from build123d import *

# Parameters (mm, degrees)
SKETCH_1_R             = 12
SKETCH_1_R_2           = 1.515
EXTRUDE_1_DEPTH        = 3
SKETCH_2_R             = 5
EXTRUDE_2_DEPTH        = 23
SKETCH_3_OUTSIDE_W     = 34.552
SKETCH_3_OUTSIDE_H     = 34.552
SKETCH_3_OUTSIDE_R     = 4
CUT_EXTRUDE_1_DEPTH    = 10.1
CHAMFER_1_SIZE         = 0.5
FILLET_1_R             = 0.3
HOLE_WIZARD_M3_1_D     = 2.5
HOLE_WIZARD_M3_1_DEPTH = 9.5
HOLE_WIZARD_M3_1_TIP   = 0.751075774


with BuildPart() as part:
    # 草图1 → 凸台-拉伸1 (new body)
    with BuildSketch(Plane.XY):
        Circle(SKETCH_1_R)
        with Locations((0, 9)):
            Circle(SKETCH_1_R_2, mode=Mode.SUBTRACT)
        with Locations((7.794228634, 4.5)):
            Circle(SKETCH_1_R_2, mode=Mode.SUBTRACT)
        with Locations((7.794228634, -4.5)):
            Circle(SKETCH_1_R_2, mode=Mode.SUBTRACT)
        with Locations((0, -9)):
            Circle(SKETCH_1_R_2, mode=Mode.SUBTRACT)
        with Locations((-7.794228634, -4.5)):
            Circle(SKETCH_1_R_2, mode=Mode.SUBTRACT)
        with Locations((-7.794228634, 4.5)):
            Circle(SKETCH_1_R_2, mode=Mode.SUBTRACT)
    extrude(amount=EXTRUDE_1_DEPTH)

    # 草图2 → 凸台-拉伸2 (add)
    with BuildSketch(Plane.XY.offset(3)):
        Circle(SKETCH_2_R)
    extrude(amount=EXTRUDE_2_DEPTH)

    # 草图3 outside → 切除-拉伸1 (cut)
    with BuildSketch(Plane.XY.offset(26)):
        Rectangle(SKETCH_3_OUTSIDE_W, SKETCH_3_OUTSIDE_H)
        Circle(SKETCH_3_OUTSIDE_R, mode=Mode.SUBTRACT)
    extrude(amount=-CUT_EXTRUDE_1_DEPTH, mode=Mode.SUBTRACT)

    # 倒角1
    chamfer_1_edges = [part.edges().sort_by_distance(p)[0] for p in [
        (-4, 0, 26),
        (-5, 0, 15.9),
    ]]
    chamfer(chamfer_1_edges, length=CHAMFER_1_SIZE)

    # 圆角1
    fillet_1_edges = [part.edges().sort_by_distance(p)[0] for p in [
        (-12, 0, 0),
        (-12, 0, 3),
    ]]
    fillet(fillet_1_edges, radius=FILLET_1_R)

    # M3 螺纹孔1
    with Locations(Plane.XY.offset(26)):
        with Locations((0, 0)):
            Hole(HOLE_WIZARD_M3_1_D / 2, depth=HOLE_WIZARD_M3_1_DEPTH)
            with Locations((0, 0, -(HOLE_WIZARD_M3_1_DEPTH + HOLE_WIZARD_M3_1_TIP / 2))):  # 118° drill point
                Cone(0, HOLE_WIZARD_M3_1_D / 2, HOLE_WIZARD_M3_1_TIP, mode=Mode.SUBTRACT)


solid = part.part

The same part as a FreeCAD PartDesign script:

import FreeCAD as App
import Part
import Sketcher

V = App.Vector


def edges_at(feature, points):
    """Names of the edges that pass closest to the given points."""
    edges = feature.Shape.Edges
    near = lambda p: min(range(len(edges)), key=lambda i: edges[i].distToShape(Part.Vertex(*p))[0])
    return sorted({f"Edge{near(p) + 1}" for p in points})


def add_polygon(sketch, points):
    """Adds a closed chain of lines whose ends are joined by coincident constraints."""
    first, n = sketch.GeometryCount, len(points)
    for a, b in zip(points, points[1:] + points[:1]):
        sketch.addGeometry(Part.LineSegment(App.Vector(*a, 0), App.Vector(*b, 0)), False)
    for i in range(n):
        sketch.addConstraint(Sketcher.Constraint("Coincident", first + i, 2, first + (i + 1) % n, 1))

doc = App.newDocument("Part")
params = doc.addObject("Spreadsheet::Sheet", "Params")
for row, (alias, value) in enumerate([
    ("sketch1_diameter", "24 mm"),
    ("sketch1_diameter2", "3.03 mm"),
    ("pad1_length", "3 mm"),
    ("sketch2_diameter", "10 mm"),
    ("pad2_length", "23 mm"),
    ("sketch3_diameter", "8 mm"),
    ("pocket1_length", "10.1 mm"),
    ("chamfer_size", "0.5 mm"),
    ("fillet_radius", "0.3 mm"),
    ("sketch4_diameter", "2.5 mm"),
    ("hole_diameter", "2.5 mm"),
    ("hole_depth", "9.5 mm"),
], start=1):
    params.set(f"A{row}", alias)
    params.set(f"B{row}", "=" + value)
    params.setAlias(f"B{row}", alias)

body = doc.addObject("PartDesign::Body", "Body")

# Sketch on XY plane
sketch1 = body.newObject("Sketcher::SketchObject", "Sketch")
sketch1.AttachmentSupport = (doc.getObject("XY_Plane"), [""])
sketch1.MapMode = "FlatFace"
sketch1.addGeometry(Part.Circle(V(0, 0, 0), V(0, 0, 1), 12), False)
sketch1.addGeometry(Part.Circle(V(-7.794229, -4.5, 0), V(0, 0, 1), 1.515), False)
sketch1.addGeometry(Part.Circle(V(0, -9, 0), V(0, 0, 1), 1.515), False)
sketch1.addGeometry(Part.Circle(V(7.794229, -4.5, 0), V(0, 0, 1), 1.515), False)
sketch1.addGeometry(Part.Circle(V(-7.794229, 4.5, 0), V(0, 0, 1), 1.515), False)
sketch1.addGeometry(Part.Circle(V(7.794229, 4.5, 0), V(0, 0, 1), 1.515), False)
sketch1.addGeometry(Part.Circle(V(0, 9, 0), V(0, 0, 1), 1.515), False)
sketch1.addConstraint(Sketcher.Constraint("Coincident", 0, 3, -1, 1))
sketch1.addConstraint(Sketcher.Constraint("Equal", 1, 2))
sketch1.addConstraint(Sketcher.Constraint("Equal", 2, 3))
sketch1.addConstraint(Sketcher.Constraint("Equal", 3, 4))
sketch1.addConstraint(Sketcher.Constraint("Equal", 4, 5))
sketch1.addConstraint(Sketcher.Constraint("Equal", 5, 6))
sketch1.addConstraint(Sketcher.Constraint("Symmetric", 3, 3, 4, 3, -1, 1))
sketch1.addConstraint(Sketcher.Constraint("Symmetric", 1, 3, 5, 3, -1, 1))
sketch1.addConstraint(Sketcher.Constraint("Symmetric", 2, 3, 6, 3, -1, 1))
sketch1.addConstraint(Sketcher.Constraint("Symmetric", 1, 3, 3, 3, -2))
sketch1.addConstraint(Sketcher.Constraint("PointOnObject", 2, 3, -2))
sketch1.addConstraint(Sketcher.Constraint("Diameter", 0, 24.0))
sketch1.addConstraint(Sketcher.Constraint("Diameter", 1, 3.03))
sketch1.addConstraint(Sketcher.Constraint("DistanceY", 2, 3, -1, 1, 9.0))
sketch1.addConstraint(Sketcher.Constraint("DistanceY", 1, 3, 4, 3, 9.0))
sketch1.addConstraint(Sketcher.Constraint("DistanceX", 1, 3, -1, 1, 7.794229))
sketch1.setExpression("Constraints[11]", "Params.sketch1_diameter")
sketch1.setExpression("Constraints[12]", "Params.sketch1_diameter2")
pad1 = body.newObject("PartDesign::Pad", "Pad")
pad1.Profile = sketch1
pad1.setExpression("Length", "Params.pad1_length")

# Sketch on XY plane
sketch2 = body.newObject("Sketcher::SketchObject", "Sketch001")
sketch2.AttachmentSupport = (doc.getObject("XY_Plane"), [""])
sketch2.MapMode = "FlatFace"
sketch2.AttachmentOffset = App.Placement(V(0, 0, 3), App.Rotation())
sketch2.addGeometry(Part.Circle(V(0, 0, 0), V(0, 0, 1), 5), False)
sketch2.addConstraint(Sketcher.Constraint("Coincident", 0, 3, -1, 1))
sketch2.addConstraint(Sketcher.Constraint("Diameter", 0, 10.0))
sketch2.setExpression("Constraints[1]", "Params.sketch2_diameter")
pad2 = body.newObject("PartDesign::Pad", "Pad001")
pad2.Profile = sketch2
pad2.setExpression("Length", "Params.pad2_length")

# Sketch on XY plane
sketch3 = body.newObject("Sketcher::SketchObject", "Sketch002")
sketch3.AttachmentSupport = (doc.getObject("XY_Plane"), [""])
sketch3.MapMode = "FlatFace"
sketch3.AttachmentOffset = App.Placement(V(0, 0, 26), App.Rotation())
add_polygon(sketch3, [(-17.276, 17.276), (-17.276, -17.276), (17.276, -17.276), (17.276, 17.276)])  # lines 0-3
sketch3.addGeometry(Part.Circle(V(0, 0, 0), V(0, 0, 1), 4), False)  # 4
sketch3.addConstraint(Sketcher.Constraint("Vertical", 0))
sketch3.addConstraint(Sketcher.Constraint("Horizontal", 1))
sketch3.addConstraint(Sketcher.Constraint("Vertical", 2))
sketch3.addConstraint(Sketcher.Constraint("Horizontal", 3))
sketch3.addConstraint(Sketcher.Constraint("Coincident", 4, 3, -1, 1))
sketch3.addConstraint(Sketcher.Constraint("Symmetric", 0, 2, 2, 2, -1, 1))
sketch3.addConstraint(Sketcher.Constraint("Equal", 3, 0))
sketch3.addConstraint(Sketcher.Constraint("Diameter", 4, 8.0))
sketch3.addConstraint(Sketcher.Constraint("DistanceX", 1, 1, 1, 2, 34.552))
sketch3.setExpression("Constraints[11]", "Params.sketch3_diameter")
pocket1 = body.newObject("PartDesign::Pocket", "Pocket")
pocket1.Profile = sketch3
pocket1.setExpression("Length", "Params.pocket1_length")
doc.recompute()

chamfer = body.newObject("PartDesign::Chamfer", "Chamfer")
chamfer.Base = (pocket1, edges_at(pocket1, [(-4, 0, 26), (-5, 0, 15.9)]))
chamfer.setExpression("Size", "Params.chamfer_size")
doc.recompute()

fillet = body.newObject("PartDesign::Fillet", "Fillet")
fillet.Base = (chamfer, edges_at(chamfer, [(-12, 0, 0), (-12, 0, 3)]))
fillet.setExpression("Radius", "Params.fillet_radius")

# Sketch on XY plane
sketch4 = body.newObject("Sketcher::SketchObject", "Sketch003")
sketch4.AttachmentSupport = (doc.getObject("XY_Plane"), [""])
sketch4.MapMode = "FlatFace"
sketch4.AttachmentOffset = App.Placement(V(0, 0, 26), App.Rotation())
sketch4.addGeometry(Part.Circle(V(0, 0, 0), V(0, 0, 1), 1.25), False)
sketch4.addConstraint(Sketcher.Constraint("Coincident", 0, 3, -1, 1))
sketch4.addConstraint(Sketcher.Constraint("Diameter", 0, 2.5))
sketch4.setExpression("Constraints[1]", "Params.sketch4_diameter")
doc.recompute()
hole = body.newObject("PartDesign::Hole", "Hole")
hole.Profile = sketch4
hole.ThreadType = "None"
hole.setExpression("Diameter", "Params.hole_diameter")
hole.DepthType = "Dimension"
hole.setExpression("Depth", "Params.hole_depth")
hole.DrillPoint = "Angled"
hole.DrillPointAngle = 118

doc.recompute()
